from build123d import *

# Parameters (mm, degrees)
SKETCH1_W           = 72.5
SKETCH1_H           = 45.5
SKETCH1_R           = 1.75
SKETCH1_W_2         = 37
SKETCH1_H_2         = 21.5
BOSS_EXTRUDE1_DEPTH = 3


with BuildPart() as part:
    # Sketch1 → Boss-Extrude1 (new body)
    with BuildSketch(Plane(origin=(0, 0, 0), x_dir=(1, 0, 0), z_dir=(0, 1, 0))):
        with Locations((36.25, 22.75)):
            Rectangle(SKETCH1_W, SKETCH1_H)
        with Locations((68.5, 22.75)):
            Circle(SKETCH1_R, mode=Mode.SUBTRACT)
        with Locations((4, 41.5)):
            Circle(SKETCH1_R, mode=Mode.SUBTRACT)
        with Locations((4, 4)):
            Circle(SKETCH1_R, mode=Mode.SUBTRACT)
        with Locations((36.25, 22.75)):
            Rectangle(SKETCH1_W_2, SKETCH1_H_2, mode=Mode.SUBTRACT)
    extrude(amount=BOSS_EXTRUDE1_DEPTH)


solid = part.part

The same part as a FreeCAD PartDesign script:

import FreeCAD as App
import Part
import Sketcher

V = App.Vector
Q = App.Units.Quantity


def add_polygon(sketch, points):
    """Adds a closed chain of lines whose ends are joined by coincident constraints."""
    first, n = sketch.GeometryCount, len(points)
    for a, b in zip(points, points[1:] + points[:1]):
        sketch.addGeometry(Part.LineSegment(App.Vector(*a, 0), App.Vector(*b, 0)), False)
    for i in range(n):
        sketch.addConstraint(Sketcher.Constraint("Coincident", first + i, 2, first + (i + 1) % n, 1))

doc = App.newDocument("Part")
body = doc.addObject("PartDesign::Body", "Body")

# Sketch on XZ plane
sketch1 = body.newObject("Sketcher::SketchObject", "Sketch")
sketch1.AttachmentSupport = (doc.getObject("XZ_Plane"), [""])
sketch1.MapMode = "FlatFace"
add_polygon(sketch1, [(0, -45.5), (0, 0), (72.5, 0), (72.5, -45.5)])  # lines 0-3
sketch1.addGeometry(Part.Circle(V(4, -4, 0), V(0, 0, 1), 1.75), False)  # 4
sketch1.addGeometry(Part.Circle(V(4, -41.5, 0), V(0, 0, 1), 1.75), False)  # 5
add_polygon(sketch1, [(54.75, -12), (17.75, -12), (17.75, -33.5), (54.75, -33.5)])  # lines 6-9
sketch1.addGeometry(Part.Circle(V(68.5, -22.75, 0), V(0, 0, 1), 1.75), False)  # 10
sketch1.addConstraint([
    Sketcher.Constraint("Vertical", 0),
    Sketcher.Constraint("Horizontal", 1),
    Sketcher.Constraint("Vertical", 2),
    Sketcher.Constraint("Horizontal", 3),
    Sketcher.Constraint("Horizontal", 6),
    Sketcher.Constraint("Vertical", 7),
    Sketcher.Constraint("Horizontal", 8),
    Sketcher.Constraint("Vertical", 9),
    Sketcher.Constraint("Coincident", 0, 2, -1, 1),
    Sketcher.Constraint("Equal", 4, 5),
    Sketcher.Constraint("Equal", 5, 10),
    Sketcher.Constraint("Vertical", 4, 3, 5, 3),
    Sketcher.Constraint("Diameter", 4, Q("3.5 mm")),
    Sketcher.Constraint("DistanceX", 6, 2, 6, 1, Q("37 mm")),
    Sketcher.Constraint("DistanceX", 1, 1, 1, 2, Q("72.5 mm")),
    Sketcher.Constraint("DistanceY", 0, 1, 0, 2, Q("45.5 mm")),
    Sketcher.Constraint("DistanceY", 7, 2, 7, 1, Q("21.5 mm")),
    Sketcher.Constraint("DistanceX", -1, 1, 4, 3, Q("4 mm")),
    Sketcher.Constraint("DistanceY", 4, 3, -1, 1, Q("4 mm")),
    Sketcher.Constraint("DistanceY", 6, 2, -1, 1, Q("12 mm")),
    Sketcher.Constraint("DistanceX", 10, 3, 1, 2, Q("4 mm")),
    Sketcher.Constraint("DistanceY", 2, 2, 5, 3, Q("4 mm")),
    Sketcher.Constraint("DistanceY", 10, 3, -1, 1, Q("22.75 mm")),
    Sketcher.Constraint("DistanceX", -1, 1, 6, 2, Q("17.75 mm")),
])
pad1 = body.newObject("PartDesign::Pad", "Pad")
pad1.Profile = sketch1
pad1.Length = 3
pad1.Reversed = True

doc.recompute()
